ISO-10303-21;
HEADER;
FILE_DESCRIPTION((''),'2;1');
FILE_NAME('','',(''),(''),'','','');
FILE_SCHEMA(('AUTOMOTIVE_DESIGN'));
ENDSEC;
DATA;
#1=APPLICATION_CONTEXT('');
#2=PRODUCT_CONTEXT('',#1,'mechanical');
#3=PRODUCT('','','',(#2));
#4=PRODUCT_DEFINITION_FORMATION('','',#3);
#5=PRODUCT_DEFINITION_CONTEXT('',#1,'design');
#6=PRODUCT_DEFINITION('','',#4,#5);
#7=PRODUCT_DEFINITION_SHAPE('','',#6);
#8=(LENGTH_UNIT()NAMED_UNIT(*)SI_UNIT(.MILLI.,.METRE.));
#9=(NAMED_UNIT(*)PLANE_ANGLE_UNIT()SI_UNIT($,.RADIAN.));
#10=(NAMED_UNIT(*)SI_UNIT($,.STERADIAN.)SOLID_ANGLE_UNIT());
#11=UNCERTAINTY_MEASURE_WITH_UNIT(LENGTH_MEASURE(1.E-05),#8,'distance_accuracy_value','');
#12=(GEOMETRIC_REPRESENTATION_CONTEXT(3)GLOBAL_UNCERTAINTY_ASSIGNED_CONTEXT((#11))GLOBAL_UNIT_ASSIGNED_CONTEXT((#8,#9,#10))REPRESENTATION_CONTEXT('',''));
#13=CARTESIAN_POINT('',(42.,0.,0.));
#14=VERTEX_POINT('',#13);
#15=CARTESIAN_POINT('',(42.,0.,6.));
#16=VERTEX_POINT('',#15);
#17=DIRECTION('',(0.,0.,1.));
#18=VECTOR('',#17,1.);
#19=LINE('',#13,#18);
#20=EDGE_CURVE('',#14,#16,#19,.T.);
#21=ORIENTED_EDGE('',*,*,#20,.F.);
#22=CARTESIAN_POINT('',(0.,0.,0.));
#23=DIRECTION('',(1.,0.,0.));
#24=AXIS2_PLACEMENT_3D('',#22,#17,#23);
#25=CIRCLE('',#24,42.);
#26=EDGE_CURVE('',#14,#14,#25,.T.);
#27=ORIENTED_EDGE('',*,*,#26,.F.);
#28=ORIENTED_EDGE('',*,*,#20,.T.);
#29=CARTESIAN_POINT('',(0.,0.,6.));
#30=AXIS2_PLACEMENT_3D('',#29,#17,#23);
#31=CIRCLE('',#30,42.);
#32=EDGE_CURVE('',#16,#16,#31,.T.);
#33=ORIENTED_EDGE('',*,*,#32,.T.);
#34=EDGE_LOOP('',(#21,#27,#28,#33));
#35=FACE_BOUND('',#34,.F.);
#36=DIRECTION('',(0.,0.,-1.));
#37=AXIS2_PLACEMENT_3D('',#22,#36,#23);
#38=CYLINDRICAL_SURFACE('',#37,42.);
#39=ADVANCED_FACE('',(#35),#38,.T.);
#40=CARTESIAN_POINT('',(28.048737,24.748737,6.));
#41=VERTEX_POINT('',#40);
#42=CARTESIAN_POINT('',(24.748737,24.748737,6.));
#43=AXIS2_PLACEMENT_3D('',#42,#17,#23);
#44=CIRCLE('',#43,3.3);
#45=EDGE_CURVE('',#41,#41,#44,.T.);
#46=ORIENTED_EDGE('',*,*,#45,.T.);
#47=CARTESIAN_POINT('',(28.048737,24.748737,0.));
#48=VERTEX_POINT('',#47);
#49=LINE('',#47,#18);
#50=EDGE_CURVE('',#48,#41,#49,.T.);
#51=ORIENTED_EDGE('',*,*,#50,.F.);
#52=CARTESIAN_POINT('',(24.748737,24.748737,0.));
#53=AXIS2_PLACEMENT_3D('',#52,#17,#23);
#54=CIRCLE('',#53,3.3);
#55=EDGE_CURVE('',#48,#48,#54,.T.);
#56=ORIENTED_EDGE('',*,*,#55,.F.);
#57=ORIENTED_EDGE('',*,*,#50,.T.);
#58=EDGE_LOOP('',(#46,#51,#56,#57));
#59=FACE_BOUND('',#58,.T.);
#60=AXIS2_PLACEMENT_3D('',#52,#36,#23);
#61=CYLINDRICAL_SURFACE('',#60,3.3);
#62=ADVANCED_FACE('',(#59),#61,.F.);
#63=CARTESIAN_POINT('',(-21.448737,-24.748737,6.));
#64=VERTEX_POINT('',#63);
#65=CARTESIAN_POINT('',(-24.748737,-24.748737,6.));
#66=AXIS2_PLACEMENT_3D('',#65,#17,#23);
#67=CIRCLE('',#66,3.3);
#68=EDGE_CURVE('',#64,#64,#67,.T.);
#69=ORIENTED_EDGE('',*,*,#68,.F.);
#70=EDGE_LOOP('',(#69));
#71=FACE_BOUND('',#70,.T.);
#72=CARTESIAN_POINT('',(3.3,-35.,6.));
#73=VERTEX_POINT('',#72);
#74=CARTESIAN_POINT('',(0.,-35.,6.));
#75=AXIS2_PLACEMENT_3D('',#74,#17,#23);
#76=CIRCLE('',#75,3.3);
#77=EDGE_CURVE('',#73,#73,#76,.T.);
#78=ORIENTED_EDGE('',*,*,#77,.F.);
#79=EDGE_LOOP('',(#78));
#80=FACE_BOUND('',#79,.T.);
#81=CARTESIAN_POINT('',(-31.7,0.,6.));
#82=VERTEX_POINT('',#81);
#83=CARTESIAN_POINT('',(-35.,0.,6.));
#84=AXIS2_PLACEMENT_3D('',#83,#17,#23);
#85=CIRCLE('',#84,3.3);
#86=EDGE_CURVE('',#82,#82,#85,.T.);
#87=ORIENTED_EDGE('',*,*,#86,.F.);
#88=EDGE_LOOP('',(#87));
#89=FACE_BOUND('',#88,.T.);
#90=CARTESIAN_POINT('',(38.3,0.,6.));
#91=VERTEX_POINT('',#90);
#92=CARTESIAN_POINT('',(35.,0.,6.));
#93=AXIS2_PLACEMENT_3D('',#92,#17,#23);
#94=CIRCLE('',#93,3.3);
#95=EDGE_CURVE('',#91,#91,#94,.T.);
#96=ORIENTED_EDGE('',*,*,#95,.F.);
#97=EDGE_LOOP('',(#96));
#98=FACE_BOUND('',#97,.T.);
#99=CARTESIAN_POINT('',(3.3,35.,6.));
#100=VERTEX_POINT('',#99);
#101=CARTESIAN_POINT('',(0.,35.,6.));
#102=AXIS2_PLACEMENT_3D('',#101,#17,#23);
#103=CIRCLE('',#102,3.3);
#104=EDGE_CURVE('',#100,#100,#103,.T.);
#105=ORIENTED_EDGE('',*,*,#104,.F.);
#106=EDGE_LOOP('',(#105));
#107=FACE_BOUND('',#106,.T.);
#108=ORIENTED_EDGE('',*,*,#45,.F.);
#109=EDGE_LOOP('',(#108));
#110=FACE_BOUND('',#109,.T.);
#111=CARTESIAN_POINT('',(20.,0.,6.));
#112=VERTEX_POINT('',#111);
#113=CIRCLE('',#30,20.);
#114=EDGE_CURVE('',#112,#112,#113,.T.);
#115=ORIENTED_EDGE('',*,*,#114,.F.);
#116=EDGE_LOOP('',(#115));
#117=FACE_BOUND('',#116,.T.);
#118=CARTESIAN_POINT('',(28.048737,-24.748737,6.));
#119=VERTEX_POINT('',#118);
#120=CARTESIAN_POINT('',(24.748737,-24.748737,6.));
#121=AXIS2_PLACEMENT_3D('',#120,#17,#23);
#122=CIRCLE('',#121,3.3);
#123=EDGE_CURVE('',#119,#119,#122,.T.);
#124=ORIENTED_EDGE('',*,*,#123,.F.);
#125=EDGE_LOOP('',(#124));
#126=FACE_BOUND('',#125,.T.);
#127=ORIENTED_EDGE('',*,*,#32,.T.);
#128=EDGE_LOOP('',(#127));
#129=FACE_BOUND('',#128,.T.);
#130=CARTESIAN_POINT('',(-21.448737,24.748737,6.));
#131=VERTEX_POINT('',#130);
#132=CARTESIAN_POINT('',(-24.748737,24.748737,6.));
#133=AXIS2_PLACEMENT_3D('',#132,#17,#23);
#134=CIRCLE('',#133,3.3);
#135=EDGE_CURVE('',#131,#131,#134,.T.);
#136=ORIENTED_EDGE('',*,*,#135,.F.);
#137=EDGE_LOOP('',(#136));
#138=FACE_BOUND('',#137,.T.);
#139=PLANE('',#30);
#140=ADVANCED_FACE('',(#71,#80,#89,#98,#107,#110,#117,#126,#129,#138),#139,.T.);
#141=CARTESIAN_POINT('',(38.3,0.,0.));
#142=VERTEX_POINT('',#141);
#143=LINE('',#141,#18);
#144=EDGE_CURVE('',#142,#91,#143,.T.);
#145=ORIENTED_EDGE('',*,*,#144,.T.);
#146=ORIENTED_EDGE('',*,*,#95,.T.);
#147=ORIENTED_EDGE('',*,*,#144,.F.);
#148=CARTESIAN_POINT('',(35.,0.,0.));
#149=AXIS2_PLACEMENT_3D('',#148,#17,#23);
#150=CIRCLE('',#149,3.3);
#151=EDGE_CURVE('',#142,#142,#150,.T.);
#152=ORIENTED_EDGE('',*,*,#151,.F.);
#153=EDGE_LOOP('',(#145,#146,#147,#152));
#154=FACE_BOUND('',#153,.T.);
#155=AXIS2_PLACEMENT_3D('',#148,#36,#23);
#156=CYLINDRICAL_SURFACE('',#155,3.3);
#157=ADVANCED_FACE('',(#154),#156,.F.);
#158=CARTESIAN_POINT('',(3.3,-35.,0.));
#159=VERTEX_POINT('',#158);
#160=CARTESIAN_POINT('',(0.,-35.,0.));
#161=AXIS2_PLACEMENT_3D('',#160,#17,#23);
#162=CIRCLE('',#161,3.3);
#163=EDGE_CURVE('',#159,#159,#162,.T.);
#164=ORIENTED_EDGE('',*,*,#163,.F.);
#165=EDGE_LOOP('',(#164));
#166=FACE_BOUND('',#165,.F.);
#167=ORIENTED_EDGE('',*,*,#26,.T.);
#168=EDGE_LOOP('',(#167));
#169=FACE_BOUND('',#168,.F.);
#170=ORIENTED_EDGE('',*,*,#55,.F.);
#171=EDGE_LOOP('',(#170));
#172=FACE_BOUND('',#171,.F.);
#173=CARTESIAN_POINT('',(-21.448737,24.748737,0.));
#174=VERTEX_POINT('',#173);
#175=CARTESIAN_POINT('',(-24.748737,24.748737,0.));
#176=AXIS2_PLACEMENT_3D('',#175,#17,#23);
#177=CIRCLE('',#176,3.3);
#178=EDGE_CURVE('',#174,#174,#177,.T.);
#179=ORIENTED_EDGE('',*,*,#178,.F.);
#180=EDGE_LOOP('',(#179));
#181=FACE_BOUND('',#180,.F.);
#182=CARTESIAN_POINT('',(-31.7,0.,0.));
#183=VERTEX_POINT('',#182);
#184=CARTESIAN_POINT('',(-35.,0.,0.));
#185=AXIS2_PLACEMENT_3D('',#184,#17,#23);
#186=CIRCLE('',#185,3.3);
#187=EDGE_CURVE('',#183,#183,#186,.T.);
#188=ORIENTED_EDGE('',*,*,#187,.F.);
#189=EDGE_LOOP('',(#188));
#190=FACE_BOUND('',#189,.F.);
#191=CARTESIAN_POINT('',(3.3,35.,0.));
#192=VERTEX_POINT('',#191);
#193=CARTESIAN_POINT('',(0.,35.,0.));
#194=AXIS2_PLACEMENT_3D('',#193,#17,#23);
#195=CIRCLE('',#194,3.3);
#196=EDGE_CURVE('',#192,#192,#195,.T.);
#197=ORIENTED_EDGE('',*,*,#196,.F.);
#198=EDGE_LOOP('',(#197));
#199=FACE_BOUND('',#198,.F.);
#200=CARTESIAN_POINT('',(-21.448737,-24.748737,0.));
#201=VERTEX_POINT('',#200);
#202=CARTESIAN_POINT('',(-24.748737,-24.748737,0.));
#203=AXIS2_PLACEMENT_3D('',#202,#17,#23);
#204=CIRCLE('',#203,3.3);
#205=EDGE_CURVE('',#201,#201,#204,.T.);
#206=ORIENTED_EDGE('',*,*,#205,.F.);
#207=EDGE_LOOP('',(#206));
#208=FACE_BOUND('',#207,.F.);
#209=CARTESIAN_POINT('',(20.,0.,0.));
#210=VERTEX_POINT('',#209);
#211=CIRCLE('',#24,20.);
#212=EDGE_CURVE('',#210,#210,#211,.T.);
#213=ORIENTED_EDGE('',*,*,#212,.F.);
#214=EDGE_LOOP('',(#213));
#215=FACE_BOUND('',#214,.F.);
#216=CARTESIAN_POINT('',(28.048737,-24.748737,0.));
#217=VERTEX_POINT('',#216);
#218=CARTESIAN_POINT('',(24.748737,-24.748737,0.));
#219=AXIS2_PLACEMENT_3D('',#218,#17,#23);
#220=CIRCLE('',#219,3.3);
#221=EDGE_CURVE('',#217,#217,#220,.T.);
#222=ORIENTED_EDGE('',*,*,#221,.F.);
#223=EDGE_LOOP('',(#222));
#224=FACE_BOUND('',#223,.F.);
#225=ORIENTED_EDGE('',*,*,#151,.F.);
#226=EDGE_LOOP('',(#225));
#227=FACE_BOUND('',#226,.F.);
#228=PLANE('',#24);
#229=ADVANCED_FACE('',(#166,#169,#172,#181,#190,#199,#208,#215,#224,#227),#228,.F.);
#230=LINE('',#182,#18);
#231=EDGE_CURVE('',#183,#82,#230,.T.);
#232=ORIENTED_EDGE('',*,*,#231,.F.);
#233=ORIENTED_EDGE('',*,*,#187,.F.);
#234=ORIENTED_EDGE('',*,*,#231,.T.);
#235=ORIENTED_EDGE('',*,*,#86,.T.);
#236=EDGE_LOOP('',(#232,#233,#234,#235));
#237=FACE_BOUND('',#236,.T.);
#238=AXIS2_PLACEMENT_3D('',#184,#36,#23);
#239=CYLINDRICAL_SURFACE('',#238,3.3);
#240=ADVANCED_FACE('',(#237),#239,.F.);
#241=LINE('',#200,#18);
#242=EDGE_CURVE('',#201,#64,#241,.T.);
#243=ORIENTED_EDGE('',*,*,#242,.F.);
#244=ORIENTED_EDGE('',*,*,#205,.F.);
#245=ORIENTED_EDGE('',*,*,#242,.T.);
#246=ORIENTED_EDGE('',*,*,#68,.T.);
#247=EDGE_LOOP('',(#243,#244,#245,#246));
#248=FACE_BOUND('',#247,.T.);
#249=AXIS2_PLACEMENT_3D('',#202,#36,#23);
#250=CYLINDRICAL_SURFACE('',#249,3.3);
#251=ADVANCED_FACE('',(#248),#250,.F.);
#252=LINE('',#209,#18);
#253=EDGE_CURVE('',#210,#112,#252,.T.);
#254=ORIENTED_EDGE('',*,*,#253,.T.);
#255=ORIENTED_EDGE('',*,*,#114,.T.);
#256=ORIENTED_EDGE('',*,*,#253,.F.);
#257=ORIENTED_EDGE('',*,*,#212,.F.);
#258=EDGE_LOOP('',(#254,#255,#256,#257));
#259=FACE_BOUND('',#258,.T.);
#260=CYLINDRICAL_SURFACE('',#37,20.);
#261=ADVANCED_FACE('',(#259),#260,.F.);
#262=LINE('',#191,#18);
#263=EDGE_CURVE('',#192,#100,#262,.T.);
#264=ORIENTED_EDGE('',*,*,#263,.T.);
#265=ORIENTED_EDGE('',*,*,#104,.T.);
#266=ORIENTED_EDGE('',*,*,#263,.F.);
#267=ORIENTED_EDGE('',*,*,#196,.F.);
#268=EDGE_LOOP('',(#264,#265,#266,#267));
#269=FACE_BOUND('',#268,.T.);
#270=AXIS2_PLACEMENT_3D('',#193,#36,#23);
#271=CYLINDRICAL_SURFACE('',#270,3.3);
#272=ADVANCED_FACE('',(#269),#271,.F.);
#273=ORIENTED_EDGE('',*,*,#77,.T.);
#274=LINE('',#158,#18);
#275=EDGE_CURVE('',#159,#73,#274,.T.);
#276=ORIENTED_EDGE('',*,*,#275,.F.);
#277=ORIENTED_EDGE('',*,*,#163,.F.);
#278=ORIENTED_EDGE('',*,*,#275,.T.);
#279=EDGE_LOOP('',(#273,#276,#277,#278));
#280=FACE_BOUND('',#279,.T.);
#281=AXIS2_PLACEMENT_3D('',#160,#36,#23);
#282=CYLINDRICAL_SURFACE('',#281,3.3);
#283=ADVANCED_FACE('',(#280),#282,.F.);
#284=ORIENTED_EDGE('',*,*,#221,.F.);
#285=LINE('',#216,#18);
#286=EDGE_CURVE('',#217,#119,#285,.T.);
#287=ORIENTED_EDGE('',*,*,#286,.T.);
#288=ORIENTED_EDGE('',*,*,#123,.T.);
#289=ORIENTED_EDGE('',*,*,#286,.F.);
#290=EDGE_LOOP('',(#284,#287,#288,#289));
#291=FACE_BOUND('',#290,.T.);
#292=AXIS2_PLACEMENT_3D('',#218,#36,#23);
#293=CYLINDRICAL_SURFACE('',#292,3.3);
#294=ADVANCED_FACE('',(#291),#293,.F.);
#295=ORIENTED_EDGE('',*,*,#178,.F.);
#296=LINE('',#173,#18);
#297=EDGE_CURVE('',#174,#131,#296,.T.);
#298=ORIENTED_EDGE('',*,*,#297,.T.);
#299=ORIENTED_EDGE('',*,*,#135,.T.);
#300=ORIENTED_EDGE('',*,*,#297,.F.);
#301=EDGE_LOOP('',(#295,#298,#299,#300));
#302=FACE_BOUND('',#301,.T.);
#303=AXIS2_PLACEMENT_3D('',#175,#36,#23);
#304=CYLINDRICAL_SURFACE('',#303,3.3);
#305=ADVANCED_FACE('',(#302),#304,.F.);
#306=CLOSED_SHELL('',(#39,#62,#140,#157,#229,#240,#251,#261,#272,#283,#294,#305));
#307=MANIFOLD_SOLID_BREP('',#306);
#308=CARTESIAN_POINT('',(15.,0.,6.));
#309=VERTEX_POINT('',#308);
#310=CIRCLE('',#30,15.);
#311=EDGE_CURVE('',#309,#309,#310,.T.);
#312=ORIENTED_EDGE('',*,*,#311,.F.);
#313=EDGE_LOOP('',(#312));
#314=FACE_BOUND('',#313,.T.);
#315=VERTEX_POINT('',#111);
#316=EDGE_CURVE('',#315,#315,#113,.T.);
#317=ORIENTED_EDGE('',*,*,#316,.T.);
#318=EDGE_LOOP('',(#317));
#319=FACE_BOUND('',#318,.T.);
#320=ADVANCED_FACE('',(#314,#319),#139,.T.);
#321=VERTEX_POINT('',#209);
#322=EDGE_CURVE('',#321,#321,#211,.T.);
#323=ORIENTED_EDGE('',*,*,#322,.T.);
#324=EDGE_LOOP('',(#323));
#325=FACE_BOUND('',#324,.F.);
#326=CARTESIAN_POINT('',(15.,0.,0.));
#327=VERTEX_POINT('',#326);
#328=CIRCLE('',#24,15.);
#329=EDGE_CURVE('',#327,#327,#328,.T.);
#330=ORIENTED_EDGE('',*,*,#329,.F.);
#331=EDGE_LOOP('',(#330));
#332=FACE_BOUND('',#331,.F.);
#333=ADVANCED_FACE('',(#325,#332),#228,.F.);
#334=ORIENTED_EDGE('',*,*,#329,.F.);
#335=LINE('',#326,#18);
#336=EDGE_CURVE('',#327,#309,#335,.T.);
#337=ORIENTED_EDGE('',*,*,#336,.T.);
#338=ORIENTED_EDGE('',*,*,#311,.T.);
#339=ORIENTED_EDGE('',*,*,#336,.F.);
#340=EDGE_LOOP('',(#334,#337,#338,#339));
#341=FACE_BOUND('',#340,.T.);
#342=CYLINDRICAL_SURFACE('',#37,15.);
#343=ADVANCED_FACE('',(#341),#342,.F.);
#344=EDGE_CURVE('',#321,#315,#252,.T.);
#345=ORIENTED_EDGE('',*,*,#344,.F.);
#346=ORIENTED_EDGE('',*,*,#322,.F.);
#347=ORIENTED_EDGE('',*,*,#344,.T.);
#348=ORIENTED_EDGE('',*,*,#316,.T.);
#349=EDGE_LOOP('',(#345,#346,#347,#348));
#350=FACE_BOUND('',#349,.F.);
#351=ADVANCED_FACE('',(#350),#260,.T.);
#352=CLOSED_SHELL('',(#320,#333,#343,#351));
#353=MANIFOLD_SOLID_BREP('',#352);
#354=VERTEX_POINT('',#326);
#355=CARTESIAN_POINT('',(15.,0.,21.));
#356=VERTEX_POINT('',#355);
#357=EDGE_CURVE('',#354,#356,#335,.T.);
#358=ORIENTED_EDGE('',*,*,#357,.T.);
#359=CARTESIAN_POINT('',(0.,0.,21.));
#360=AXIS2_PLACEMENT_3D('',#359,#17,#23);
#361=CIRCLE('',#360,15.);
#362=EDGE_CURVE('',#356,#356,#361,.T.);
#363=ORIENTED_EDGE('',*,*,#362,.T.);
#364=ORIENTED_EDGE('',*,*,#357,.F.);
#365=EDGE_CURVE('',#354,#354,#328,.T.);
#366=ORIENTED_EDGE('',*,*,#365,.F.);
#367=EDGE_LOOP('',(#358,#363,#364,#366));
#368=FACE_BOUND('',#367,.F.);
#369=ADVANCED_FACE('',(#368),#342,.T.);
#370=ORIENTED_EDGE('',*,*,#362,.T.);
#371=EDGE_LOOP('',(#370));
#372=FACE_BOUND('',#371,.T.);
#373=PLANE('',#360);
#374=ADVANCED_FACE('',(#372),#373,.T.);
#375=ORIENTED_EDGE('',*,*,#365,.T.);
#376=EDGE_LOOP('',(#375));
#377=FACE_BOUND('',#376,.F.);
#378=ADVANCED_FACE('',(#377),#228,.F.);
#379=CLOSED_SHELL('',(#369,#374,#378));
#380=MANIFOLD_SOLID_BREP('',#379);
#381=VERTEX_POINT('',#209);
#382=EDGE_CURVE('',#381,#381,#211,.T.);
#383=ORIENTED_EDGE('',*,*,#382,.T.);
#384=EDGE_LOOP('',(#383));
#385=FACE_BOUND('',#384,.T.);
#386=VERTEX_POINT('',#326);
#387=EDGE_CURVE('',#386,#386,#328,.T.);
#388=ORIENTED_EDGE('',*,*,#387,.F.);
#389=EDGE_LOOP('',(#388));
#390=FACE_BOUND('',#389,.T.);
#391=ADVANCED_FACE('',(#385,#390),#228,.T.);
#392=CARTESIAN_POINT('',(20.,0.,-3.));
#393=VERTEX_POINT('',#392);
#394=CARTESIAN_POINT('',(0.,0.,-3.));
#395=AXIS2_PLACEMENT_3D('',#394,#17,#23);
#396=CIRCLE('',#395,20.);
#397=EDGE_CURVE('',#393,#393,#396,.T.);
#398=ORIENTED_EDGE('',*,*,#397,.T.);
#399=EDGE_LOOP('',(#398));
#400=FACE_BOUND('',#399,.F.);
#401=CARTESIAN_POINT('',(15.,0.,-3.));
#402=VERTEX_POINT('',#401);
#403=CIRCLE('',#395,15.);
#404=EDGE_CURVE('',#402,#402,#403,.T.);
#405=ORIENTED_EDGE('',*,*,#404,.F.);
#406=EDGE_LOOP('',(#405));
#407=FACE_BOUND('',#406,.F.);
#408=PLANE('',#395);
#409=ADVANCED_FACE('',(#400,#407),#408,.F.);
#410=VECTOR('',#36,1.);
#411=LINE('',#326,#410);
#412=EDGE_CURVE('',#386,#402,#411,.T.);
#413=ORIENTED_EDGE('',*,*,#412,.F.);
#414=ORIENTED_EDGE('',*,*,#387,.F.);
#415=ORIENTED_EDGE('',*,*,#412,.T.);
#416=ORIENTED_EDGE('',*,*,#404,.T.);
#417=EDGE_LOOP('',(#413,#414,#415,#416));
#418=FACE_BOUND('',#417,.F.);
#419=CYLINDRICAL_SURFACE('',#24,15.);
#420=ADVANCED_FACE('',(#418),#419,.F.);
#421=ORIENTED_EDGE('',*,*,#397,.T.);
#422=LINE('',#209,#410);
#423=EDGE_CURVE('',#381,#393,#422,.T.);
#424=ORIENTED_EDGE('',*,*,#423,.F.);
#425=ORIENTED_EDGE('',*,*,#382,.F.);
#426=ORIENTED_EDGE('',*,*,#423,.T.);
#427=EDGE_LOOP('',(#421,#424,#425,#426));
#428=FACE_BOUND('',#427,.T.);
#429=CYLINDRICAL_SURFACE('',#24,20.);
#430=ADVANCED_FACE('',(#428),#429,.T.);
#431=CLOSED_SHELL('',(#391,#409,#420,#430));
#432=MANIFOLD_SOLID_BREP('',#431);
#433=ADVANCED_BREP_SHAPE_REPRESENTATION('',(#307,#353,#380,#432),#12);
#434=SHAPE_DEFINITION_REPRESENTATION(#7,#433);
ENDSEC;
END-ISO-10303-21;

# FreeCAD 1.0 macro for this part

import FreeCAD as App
import Part
import Sketcher
Q = App.Units.Quantity

doc = App.newDocument("Part")
params = doc.addObject("Spreadsheet::Sheet", "Params")
for row, (alias, value) in enumerate([
    ("sketch1_diameter", "40 mm"),
    ("sketch1_diameter2", "30 mm"),
    ("pad1_length", "3 mm"),
    ("sketch2_diameter", "30 mm"),
    ("pad2_length", "21 mm"),
    ("sketch3_diameter", "84 mm"),
    ("sketch3_diameter2", "40 mm"),
    ("sketch3_diameter3", "6.6 mm"),
    ("pad3_length", "6 mm"),
    ("sketch4_diameter", "40 mm"),
    ("sketch4_diameter2", "30 mm"),
    ("pad4_length", "6 mm"),
], start=1):
    params.set(f"A{row}", alias)
    params.set(f"B{row}", "=" + value)
    params.setAlias(f"B{row}", alias)

body = doc.addObject("PartDesign::Body", "Body")

sketch1 = body.newObject("Sketcher::SketchObject", "Sketch")
sketch1.AttachmentSupport = (doc.getObject("XY_Plane"), [""])
sketch1.MapMode = "FlatFace"
sketch1.addGeometry(Part.Circle(App.Vector(0, 0, 0), App.Vector(0, 0, 1), 20), False)
sketch1.addGeometry(Part.Circle(App.Vector(0, 0, 0), App.Vector(0, 0, 1), 15), False)
sketch1.addConstraint(Sketcher.Constraint("Coincident", 0, 3, -1, 1))
sketch1.addConstraint(Sketcher.Constraint("Coincident", 1, 3, -1, 1))
sketch1.addConstraint(Sketcher.Constraint("Diameter", 0, Q("40 mm")))
sketch1.addConstraint(Sketcher.Constraint("Diameter", 1, Q("30 mm")))
sketch1.setExpression("Constraints[2]", "Params.sketch1_diameter")
sketch1.setExpression("Constraints[3]", "Params.sketch1_diameter2")
pad1 = body.newObject("PartDesign::Pad", "Pad")
pad1.Profile = sketch1
pad1.setExpression("Length", "Params.pad1_length")
pad1.Reversed = True
body2 = doc.addObject("PartDesign::Body", "Body001")

sketch2 = body2.newObject("Sketcher::SketchObject", "Sketch001")
sketch2.AttachmentSupport = (doc.getObject("XY_Plane001"), [""])
sketch2.MapMode = "FlatFace"
sketch2.addGeometry(Part.Circle(App.Vector(0, 0, 0), App.Vector(0, 0, 1), 15), False)
sketch2.addConstraint(Sketcher.Constraint("Coincident", 0, 3, -1, 1))
sketch2.addConstraint(Sketcher.Constraint("Diameter", 0, Q("30 mm")))
sketch2.setExpression("Constraints[1]", "Params.sketch2_diameter")
pad2 = body2.newObject("PartDesign::Pad", "Pad001")
pad2.Profile = sketch2
pad2.setExpression("Length", "Params.pad2_length")
body3 = doc.addObject("PartDesign::Body", "Body002")

sketch3 = body3.newObject("Sketcher::SketchObject", "Sketch002")
sketch3.AttachmentSupport = (doc.getObject("XY_Plane002"), [""])
sketch3.MapMode = "FlatFace"
sketch3.addGeometry(Part.Circle(App.Vector(0, 0, 0), App.Vector(0, 0, 1), 42), False)
sketch3.addGeometry(Part.Circle(App.Vector(-24.7, -24.7, 0), App.Vector(0, 0, 1), 3.3), False)
sketch3.addGeometry(Part.Circle(App.Vector(0, -35, 0), App.Vector(0, 0, 1), 3.3), False)
sketch3.addGeometry(Part.Circle(App.Vector(24.7, -24.7, 0), App.Vector(0, 0, 1), 3.3), False)
sketch3.addGeometry(Part.Circle(App.Vector(-35, 0, 0), App.Vector(0, 0, 1), 3.3), False)
sketch3.addGeometry(Part.Circle(App.Vector(-24.7, 24.7, 0), App.Vector(0, 0, 1), 3.3), False)
sketch3.addGeometry(Part.Circle(App.Vector(0, 0, 0), App.Vector(0, 0, 1), 20), False)
sketch3.addGeometry(Part.Circle(App.Vector(35, 0, 0), App.Vector(0, 0, 1), 3.3), False)
sketch3.addGeometry(Part.Circle(App.Vector(0, 35, 0), App.Vector(0, 0, 1), 3.3), False)
sketch3.addGeometry(Part.Circle(App.Vector(24.7, 24.7, 0), App.Vector(0, 0, 1), 3.3), False)
sketch3.addConstraint(Sketcher.Constraint("Coincident", 0, 3, -1, 1))
sketch3.addConstraint(Sketcher.Constraint("Coincident", 6, 3, -1, 1))
sketch3.addConstraint(Sketcher.Constraint("Equal", 1, 2))
sketch3.addConstraint(Sketcher.Constraint("Equal", 2, 3))
sketch3.addConstraint(Sketcher.Constraint("Equal", 3, 4))
sketch3.addConstraint(Sketcher.Constraint("Equal", 4, 5))
sketch3.addConstraint(Sketcher.Constraint("Equal", 5, 7))
sketch3.addConstraint(Sketcher.Constraint("Equal", 7, 8))
sketch3.addConstraint(Sketcher.Constraint("Equal", 8, 9))
sketch3.addConstraint(Sketcher.Constraint("Symmetric", 3, 3, 5, 3, -1, 1))
sketch3.addConstraint(Sketcher.Constraint("Symmetric", 4, 3, 7, 3, -1, 1))
sketch3.addConstraint(Sketcher.Constraint("Symmetric", 2, 3, 8, 3, -1, 1))
sketch3.addConstraint(Sketcher.Constraint("Symmetric", 1, 3, 9, 3, -1, 1))
sketch3.addConstraint(Sketcher.Constraint("Symmetric", 1, 3, 3, 3, -2))
sketch3.addConstraint(Sketcher.Constraint("PointOnObject", 2, 3, -2))
sketch3.addConstraint(Sketcher.Constraint("PointOnObject", 4, 3, -1))
sketch3.addConstraint(Sketcher.Constraint("Diameter", 0, Q("84 mm")))
sketch3.addConstraint(Sketcher.Constraint("Diameter", 6, Q("40 mm")))
sketch3.addConstraint(Sketcher.Constraint("Diameter", 1, Q("6.6 mm")))
sketch3.addConstraint(Sketcher.Constraint("DistanceY", 2, 3, -1, 1, Q("35 mm")))
sketch3.addConstraint(Sketcher.Constraint("DistanceX", 4, 3, -1, 1, Q("35 mm")))
sketch3.addConstraint(Sketcher.Constraint("DistanceX", 1, 3, -1, 1, Q("24.748737 mm")))
sketch3.addConstraint(Sketcher.Constraint("DistanceY", 1, 3, -1, 1, Q("24.748737 mm")))
sketch3.setExpression("Constraints[16]", "Params.sketch3_diameter")
sketch3.setExpression("Constraints[17]", "Params.sketch3_diameter2")
sketch3.setExpression("Constraints[18]", "Params.sketch3_diameter3")
pad3 = body3.newObject("PartDesign::Pad", "Pad002")
pad3.Profile = sketch3
pad3.setExpression("Length", "Params.pad3_length")
body4 = doc.addObject("PartDesign::Body", "Body003")

sketch4 = body4.newObject("Sketcher::SketchObject", "Sketch003")
sketch4.AttachmentSupport = (doc.getObject("XY_Plane003"), [""])
sketch4.MapMode = "FlatFace"
sketch4.addGeometry(Part.Circle(App.Vector(0, 0, 0), App.Vector(0, 0, 1), 20), False)
sketch4.addGeometry(Part.Circle(App.Vector(0, 0, 0), App.Vector(0, 0, 1), 15), False)
sketch4.addConstraint(Sketcher.Constraint("Coincident", 0, 3, -1, 1))
sketch4.addConstraint(Sketcher.Constraint("Coincident", 1, 3, -1, 1))
sketch4.addConstraint(Sketcher.Constraint("Diameter", 0, Q("40 mm")))
sketch4.addConstraint(Sketcher.Constraint("Diameter", 1, Q("30 mm")))
sketch4.setExpression("Constraints[2]", "Params.sketch4_diameter")
sketch4.setExpression("Constraints[3]", "Params.sketch4_diameter2")
pad4 = body4.newObject("PartDesign::Pad", "Pad003")
pad4.Profile = sketch4
pad4.setExpression("Length", "Params.pad4_length")

doc.recompute()
